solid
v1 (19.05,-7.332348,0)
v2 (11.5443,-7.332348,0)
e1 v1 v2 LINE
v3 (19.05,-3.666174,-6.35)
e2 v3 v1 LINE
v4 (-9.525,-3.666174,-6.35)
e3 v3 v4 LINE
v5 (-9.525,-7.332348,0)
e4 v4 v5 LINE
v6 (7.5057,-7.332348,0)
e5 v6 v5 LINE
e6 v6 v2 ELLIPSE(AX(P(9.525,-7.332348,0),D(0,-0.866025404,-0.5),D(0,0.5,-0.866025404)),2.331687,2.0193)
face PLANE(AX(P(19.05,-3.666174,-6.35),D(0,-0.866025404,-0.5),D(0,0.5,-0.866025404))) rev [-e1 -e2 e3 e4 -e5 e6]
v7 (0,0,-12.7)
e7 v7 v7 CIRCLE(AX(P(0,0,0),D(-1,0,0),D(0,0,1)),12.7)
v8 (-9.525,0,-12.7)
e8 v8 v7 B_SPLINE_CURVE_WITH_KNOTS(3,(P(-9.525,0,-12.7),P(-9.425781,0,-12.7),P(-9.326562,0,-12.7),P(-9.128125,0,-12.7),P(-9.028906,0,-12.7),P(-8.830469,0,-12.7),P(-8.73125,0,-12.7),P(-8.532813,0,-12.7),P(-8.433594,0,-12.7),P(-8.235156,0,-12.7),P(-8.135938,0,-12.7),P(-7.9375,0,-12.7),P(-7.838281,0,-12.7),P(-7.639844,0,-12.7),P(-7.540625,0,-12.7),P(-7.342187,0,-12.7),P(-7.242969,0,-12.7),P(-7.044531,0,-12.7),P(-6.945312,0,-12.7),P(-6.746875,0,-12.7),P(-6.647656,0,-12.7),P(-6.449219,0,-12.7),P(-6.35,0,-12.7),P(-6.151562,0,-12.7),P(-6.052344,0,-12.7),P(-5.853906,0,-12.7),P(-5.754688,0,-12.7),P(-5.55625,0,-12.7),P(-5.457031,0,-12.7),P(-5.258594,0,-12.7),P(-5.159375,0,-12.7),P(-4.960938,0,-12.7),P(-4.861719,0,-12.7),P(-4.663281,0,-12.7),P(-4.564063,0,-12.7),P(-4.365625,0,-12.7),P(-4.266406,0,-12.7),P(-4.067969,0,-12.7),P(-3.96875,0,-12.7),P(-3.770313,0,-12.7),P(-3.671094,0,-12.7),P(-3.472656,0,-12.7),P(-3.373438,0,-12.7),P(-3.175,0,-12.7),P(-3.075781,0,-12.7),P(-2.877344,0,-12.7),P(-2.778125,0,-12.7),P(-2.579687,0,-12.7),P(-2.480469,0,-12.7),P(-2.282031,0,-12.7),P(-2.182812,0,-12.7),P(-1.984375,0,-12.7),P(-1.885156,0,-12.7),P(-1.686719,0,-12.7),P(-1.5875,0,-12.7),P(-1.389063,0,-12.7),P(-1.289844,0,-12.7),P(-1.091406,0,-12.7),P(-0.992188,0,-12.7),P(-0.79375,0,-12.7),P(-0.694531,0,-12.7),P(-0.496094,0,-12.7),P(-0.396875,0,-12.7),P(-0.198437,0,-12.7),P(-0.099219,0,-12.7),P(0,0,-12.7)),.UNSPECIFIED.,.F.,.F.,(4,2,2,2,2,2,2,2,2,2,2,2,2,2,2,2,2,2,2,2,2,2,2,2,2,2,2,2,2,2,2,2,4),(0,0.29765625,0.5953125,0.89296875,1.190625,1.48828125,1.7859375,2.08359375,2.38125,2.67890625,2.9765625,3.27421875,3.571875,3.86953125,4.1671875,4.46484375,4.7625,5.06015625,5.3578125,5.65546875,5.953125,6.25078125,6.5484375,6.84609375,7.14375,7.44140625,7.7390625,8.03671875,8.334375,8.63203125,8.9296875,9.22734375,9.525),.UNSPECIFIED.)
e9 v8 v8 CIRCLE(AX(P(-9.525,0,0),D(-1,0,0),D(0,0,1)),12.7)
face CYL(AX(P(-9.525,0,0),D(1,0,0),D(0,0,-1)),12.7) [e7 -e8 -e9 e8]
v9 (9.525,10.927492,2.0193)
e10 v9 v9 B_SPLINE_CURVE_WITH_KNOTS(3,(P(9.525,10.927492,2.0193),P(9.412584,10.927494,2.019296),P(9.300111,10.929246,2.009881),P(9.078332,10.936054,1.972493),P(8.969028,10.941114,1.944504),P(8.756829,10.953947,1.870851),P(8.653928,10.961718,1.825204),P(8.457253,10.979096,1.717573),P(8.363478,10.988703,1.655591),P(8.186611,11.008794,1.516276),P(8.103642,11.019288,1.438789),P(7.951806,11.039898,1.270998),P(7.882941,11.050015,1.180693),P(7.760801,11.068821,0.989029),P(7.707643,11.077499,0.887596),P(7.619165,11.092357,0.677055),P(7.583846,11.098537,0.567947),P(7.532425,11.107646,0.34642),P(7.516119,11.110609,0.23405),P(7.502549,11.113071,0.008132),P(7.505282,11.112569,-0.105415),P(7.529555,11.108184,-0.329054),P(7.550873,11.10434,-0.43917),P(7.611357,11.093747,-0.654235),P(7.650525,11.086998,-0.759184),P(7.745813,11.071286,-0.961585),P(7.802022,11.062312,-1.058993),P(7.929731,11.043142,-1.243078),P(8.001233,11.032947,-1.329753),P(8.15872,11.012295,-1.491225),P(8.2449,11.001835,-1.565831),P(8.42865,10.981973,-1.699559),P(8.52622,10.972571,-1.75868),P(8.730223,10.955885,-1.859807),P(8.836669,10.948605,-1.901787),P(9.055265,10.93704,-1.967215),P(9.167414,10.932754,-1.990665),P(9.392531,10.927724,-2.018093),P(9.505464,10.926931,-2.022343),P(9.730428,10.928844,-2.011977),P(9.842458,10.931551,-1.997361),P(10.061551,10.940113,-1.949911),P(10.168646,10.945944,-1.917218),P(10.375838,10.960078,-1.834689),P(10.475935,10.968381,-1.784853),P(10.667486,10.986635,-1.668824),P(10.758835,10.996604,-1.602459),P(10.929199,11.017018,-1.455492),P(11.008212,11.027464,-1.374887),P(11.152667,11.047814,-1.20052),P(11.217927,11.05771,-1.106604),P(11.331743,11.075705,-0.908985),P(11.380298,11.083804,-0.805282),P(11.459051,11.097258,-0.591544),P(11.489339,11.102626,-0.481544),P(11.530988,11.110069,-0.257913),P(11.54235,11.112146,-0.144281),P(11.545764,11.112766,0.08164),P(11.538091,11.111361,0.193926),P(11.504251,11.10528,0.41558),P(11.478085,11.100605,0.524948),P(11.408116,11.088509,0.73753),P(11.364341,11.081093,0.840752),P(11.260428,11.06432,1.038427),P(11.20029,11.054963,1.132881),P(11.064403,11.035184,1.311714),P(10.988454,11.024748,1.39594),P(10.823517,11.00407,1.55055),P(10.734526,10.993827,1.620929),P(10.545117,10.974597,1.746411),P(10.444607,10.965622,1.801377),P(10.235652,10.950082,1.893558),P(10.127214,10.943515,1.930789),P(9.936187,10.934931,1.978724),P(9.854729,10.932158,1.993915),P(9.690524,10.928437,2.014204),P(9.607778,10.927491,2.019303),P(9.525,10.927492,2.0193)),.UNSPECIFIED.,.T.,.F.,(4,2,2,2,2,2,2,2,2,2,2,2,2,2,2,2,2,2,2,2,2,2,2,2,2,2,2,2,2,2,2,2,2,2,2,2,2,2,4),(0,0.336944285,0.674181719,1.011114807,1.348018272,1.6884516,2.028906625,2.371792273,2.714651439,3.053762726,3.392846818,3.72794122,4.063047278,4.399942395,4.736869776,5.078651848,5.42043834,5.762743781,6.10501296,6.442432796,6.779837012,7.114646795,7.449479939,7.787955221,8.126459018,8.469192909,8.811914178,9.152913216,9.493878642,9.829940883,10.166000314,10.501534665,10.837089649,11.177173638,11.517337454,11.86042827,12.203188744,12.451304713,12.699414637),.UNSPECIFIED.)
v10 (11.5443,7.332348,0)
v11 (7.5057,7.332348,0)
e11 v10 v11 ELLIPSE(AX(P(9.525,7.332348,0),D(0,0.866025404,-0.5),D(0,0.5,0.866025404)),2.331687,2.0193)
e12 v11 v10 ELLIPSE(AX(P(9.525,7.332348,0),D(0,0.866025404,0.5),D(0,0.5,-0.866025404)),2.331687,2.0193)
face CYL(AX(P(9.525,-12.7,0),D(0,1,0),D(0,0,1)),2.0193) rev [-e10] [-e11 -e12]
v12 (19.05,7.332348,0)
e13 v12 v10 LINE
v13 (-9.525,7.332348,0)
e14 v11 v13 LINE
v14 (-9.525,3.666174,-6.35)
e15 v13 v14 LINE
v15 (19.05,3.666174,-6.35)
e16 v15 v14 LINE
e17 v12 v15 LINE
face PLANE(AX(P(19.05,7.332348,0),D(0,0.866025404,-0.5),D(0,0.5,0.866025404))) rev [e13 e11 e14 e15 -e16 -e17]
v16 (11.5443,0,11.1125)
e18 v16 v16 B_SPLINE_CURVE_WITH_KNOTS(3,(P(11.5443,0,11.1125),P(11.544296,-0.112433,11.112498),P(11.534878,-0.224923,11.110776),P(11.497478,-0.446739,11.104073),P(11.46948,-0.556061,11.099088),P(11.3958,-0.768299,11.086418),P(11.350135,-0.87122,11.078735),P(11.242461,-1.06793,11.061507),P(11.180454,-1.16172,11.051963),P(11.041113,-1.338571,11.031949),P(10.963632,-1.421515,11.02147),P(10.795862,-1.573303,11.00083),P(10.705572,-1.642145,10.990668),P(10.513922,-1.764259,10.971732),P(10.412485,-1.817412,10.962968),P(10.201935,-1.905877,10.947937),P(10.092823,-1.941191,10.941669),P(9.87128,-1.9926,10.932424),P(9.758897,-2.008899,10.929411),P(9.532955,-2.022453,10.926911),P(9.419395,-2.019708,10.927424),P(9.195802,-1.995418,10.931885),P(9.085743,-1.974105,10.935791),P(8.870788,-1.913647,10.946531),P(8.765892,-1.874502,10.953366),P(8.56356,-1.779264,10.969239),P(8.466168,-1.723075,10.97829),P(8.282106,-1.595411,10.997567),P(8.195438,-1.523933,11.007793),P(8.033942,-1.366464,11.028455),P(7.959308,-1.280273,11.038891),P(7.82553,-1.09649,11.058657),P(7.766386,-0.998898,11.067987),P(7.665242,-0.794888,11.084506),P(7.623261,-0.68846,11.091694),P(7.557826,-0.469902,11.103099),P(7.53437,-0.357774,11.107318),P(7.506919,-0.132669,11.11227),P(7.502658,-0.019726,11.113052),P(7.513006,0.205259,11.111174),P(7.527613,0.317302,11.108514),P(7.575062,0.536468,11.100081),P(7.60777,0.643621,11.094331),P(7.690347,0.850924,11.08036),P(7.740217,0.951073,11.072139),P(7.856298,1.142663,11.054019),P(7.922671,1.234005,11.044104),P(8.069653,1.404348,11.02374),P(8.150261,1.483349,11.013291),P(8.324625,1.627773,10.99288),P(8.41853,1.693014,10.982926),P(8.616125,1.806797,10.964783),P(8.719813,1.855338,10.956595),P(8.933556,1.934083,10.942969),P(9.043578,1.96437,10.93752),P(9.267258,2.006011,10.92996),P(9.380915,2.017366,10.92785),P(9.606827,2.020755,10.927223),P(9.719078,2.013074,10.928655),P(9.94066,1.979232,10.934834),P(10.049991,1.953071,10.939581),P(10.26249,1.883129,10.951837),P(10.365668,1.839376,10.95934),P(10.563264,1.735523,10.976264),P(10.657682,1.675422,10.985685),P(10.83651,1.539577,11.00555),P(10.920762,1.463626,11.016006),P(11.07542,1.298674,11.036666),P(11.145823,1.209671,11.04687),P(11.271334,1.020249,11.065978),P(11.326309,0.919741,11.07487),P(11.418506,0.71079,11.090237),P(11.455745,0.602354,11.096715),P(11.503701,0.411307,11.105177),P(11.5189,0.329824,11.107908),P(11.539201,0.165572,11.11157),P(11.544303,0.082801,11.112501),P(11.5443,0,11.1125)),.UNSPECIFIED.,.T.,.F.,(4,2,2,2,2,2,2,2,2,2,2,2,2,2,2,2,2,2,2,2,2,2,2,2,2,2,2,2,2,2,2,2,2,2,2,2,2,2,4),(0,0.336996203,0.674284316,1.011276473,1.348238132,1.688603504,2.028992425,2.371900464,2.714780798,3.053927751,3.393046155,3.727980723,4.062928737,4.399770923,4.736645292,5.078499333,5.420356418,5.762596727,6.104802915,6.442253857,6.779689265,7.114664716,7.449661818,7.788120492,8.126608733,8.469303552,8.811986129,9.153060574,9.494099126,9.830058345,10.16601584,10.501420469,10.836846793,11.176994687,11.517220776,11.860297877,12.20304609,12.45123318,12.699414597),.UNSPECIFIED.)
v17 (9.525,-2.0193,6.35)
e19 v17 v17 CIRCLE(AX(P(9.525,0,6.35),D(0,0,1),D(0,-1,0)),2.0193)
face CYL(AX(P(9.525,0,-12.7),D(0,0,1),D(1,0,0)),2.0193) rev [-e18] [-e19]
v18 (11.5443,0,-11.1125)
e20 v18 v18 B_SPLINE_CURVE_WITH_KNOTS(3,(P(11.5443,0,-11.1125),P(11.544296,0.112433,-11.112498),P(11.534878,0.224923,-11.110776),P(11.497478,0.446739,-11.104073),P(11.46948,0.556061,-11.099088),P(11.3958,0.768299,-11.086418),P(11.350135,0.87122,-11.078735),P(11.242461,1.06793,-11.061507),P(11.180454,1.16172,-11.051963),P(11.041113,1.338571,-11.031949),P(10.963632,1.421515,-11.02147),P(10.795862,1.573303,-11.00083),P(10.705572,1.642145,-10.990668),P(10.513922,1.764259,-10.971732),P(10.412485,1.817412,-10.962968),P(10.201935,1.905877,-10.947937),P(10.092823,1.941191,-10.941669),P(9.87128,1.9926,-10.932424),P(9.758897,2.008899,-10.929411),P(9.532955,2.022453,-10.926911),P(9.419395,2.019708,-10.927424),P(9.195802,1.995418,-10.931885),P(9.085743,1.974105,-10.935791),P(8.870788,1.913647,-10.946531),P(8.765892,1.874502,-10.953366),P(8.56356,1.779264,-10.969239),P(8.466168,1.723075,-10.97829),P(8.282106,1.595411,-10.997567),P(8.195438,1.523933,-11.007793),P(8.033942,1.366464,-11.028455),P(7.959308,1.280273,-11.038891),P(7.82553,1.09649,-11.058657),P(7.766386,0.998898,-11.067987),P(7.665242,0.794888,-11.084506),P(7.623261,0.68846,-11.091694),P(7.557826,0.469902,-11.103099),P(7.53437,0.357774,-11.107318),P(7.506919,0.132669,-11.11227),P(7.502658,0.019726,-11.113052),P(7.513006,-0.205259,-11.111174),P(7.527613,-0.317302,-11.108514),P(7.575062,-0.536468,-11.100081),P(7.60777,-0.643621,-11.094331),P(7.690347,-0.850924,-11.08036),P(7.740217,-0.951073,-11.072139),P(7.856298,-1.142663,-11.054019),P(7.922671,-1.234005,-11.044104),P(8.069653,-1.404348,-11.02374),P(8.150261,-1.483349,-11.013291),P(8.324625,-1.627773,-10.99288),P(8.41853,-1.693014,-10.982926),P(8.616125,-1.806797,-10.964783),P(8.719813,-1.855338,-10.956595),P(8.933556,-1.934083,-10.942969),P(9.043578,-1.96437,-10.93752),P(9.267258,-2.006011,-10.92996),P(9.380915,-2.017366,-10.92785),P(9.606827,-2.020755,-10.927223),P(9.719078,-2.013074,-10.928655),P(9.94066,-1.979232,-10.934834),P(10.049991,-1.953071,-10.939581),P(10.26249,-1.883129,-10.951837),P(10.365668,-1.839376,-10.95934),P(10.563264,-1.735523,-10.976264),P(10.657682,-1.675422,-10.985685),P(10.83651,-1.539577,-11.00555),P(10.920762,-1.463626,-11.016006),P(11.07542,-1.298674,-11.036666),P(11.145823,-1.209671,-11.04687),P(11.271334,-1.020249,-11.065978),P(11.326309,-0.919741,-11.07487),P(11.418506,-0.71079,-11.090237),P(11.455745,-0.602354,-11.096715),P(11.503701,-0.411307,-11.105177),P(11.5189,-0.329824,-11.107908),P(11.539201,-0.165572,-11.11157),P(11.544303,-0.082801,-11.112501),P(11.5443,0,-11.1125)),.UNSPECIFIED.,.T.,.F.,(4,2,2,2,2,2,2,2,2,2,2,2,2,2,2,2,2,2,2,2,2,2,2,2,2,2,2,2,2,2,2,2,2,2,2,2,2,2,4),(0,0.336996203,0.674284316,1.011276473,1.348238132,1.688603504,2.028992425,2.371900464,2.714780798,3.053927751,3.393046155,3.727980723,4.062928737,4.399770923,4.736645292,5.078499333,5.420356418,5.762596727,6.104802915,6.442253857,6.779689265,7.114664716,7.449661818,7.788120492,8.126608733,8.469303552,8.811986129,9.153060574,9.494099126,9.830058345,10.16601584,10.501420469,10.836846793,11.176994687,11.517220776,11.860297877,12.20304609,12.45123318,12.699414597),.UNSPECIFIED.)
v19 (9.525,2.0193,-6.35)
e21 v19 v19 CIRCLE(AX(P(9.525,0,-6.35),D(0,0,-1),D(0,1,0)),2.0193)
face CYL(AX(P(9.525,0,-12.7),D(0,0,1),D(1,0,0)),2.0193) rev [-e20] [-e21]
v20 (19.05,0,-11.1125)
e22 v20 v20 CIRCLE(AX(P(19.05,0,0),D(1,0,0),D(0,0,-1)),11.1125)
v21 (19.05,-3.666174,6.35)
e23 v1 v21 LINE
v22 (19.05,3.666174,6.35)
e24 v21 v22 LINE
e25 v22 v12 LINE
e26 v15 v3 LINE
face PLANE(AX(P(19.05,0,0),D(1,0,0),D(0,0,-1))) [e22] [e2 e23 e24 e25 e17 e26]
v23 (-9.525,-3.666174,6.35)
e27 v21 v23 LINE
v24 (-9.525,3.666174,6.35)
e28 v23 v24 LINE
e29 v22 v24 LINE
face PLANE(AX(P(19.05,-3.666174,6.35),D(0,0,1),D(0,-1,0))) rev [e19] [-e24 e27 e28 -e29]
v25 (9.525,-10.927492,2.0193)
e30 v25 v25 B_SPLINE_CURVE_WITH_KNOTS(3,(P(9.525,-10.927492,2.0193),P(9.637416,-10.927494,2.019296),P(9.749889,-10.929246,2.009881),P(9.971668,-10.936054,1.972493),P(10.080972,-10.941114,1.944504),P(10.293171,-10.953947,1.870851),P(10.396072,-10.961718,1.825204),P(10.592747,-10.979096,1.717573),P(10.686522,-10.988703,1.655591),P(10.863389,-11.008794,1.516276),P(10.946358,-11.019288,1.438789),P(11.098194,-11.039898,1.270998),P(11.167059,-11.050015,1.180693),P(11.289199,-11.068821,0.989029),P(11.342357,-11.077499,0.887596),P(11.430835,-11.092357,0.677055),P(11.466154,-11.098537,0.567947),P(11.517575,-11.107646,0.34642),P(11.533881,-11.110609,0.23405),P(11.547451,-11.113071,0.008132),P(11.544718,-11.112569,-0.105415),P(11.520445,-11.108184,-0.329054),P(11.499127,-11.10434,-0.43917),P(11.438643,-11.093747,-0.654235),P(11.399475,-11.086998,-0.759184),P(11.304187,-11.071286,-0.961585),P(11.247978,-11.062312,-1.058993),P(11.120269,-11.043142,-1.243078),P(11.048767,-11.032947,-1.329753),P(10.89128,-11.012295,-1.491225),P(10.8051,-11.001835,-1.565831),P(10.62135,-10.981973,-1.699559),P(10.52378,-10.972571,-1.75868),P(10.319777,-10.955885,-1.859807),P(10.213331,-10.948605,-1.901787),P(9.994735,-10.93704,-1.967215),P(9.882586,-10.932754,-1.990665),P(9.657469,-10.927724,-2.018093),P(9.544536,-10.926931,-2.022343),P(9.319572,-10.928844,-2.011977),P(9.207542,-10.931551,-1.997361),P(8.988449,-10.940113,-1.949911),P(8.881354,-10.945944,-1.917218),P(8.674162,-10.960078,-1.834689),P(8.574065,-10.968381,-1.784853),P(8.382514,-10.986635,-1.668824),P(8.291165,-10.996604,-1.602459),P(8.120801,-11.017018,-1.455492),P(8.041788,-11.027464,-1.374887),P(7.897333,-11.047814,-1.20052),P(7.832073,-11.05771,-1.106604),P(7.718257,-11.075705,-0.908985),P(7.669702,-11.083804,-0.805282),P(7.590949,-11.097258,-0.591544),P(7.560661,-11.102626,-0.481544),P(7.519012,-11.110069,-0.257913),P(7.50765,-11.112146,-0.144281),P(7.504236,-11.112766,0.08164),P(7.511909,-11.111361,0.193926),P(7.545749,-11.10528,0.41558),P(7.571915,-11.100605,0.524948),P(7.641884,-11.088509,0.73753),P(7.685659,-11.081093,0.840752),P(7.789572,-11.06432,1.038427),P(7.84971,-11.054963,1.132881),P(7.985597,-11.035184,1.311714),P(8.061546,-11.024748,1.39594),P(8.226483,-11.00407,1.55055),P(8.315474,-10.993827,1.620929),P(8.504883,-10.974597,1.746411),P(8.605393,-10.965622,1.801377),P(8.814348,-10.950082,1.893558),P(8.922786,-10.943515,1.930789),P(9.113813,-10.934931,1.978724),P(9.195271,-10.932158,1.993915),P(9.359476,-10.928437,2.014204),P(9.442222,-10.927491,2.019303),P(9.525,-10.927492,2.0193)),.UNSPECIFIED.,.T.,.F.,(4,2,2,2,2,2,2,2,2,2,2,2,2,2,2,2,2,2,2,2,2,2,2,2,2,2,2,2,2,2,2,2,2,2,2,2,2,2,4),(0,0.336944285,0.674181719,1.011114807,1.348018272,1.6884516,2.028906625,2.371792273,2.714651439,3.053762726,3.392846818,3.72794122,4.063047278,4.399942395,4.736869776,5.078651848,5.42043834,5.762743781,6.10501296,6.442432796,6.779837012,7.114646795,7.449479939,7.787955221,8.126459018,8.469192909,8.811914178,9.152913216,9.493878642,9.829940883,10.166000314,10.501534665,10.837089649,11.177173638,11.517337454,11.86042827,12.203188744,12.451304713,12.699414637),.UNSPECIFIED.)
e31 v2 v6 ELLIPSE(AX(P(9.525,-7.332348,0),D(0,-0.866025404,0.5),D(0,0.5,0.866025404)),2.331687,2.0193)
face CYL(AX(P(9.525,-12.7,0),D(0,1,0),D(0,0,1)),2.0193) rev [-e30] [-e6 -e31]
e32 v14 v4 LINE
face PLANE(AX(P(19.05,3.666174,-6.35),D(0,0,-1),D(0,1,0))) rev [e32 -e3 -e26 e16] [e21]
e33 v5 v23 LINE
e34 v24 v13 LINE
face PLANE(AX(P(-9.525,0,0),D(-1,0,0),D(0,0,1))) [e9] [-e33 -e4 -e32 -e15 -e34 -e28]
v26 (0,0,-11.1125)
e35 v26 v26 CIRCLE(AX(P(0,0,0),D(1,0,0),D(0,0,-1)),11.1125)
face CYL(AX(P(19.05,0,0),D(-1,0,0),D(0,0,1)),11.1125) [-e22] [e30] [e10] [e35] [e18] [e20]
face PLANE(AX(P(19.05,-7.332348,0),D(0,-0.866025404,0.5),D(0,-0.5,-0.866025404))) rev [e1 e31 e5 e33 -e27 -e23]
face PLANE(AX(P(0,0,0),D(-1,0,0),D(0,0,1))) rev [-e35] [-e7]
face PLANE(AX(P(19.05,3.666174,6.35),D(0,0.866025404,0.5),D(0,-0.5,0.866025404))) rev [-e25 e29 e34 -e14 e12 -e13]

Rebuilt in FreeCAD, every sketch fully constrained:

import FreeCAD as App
import Part
import Sketcher

V = App.Vector
Q = App.Units.Quantity

doc = App.newDocument("Part")
body = doc.addObject("PartDesign::Body", "Body")

sketch1 = doc.addObject("Sketcher::SketchObject", "Sketch")
body.addObject(sketch1)
sketch1.AttachmentSupport = (doc.YZ_Plane, [""])
sketch1.MapMode = "FlatFace"
sketch1.addGeometry(Part.Circle(V(0, 0, 0), V(0, 0, 1), 11), False)
sketch1.addConstraint(Sketcher.Constraint("Coincident", 0, 3, -1, 1))
sketch1.addConstraint(Sketcher.Constraint("Diameter", 0, Q("0.875 in")))
pad1 = doc.addObject("PartDesign::Pad", "Pad")
body.addObject(pad1)
pad1.Profile = sketch1
pad1.Length = Q("0.75 in")

sketch2 = doc.addObject("Sketcher::SketchObject", "Sketch001")
body.addObject(sketch2)
sketch2.AttachmentSupport = (doc.YZ_Plane, [""])
sketch2.MapMode = "FlatFace"
sketch2.addGeometry(Part.Circle(V(0, 0, 0), V(0, 0, 1), 13), False)
sketch2.addConstraint(Sketcher.Constraint("Coincident", 0, 3, -1, 1))
sketch2.addConstraint(Sketcher.Constraint("Diameter", 0, Q("1 in")))
pad2 = doc.addObject("PartDesign::Pad", "Pad001")
body.addObject(pad2)
pad2.Profile = sketch2
pad2.Length = Q("0.375 in")
pad2.Reversed = True

sketch3 = doc.addObject("Sketcher::SketchObject", "Sketch002")
body.addObject(sketch3)
sketch3.AttachmentSupport = (doc.YZ_Plane, [""])
sketch3.MapMode = "FlatFace"
sketch3.AttachmentOffset = App.Placement(V(0, 0, -0.375 * 25.4), App.Rotation())
sketch3.addGeometry(Part.LineSegment(V(7, 0, 0), V(4, -6, 0)), False)
sketch3.addGeometry(Part.LineSegment(V(4, -6, 0), V(-4, -6, 0)), False)
sketch3.addGeometry(Part.LineSegment(V(-4, -6, 0), V(-7, 0, 0)), False)
sketch3.addGeometry(Part.LineSegment(V(-7, 0, 0), V(-4, 6, 0)), False)
sketch3.addGeometry(Part.LineSegment(V(-4, 6, 0), V(4, 6, 0)), False)
sketch3.addGeometry(Part.LineSegment(V(4, 6, 0), V(7, 0, 0)), False)
sketch3.addConstraint(Sketcher.Constraint("Coincident", 0, 2, 1, 1))
sketch3.addConstraint(Sketcher.Constraint("Coincident", 1, 2, 2, 1))
sketch3.addConstraint(Sketcher.Constraint("Coincident", 2, 2, 3, 1))
sketch3.addConstraint(Sketcher.Constraint("Coincident", 3, 2, 4, 1))
sketch3.addConstraint(Sketcher.Constraint("Coincident", 4, 2, 5, 1))
sketch3.addConstraint(Sketcher.Constraint("Coincident", 5, 2, 0, 1))
sketch3.addConstraint(Sketcher.Constraint("Horizontal", 1))
sketch3.addConstraint(Sketcher.Constraint("Horizontal", 4))
sketch3.addConstraint(Sketcher.Constraint("Symmetric", 0, 2, 3, 2, -1, 1))
sketch3.addConstraint(Sketcher.Constraint("Symmetric", 2, 2, 5, 2, -1, 1))
sketch3.addConstraint(Sketcher.Constraint("PointOnObject", 2, 2, -1))
sketch3.addConstraint(Sketcher.Constraint("Parallel", 2, 5))
sketch3.addConstraint(Sketcher.Constraint("Vertical", 1, 2, 3, 2))
sketch3.addConstraint(Sketcher.Constraint("Angle", 0, Q("-120 deg")))
sketch3.addConstraint(Sketcher.Constraint("DistanceY", 1, 2, 3, 2, Q("0.5 in")))
sketch3.addConstraint(Sketcher.Constraint("DistanceX", 1, 2, 1, 1, 7.332348))
pocket1 = doc.addObject("PartDesign::Pocket", "Pocket")
body.addObject(pocket1)
pocket1.Profile = sketch3
pocket1.Type = "ThroughAll"
pocket1.Reversed = True

sketch4 = doc.addObject("Sketcher::SketchObject", "Sketch003")
body.addObject(sketch4)
sketch4.AttachmentSupport = (doc.XY_Plane, [""])
sketch4.MapMode = "FlatFace"
sketch4.addGeometry(Part.Circle(V(9.5, 0, 0), V(0, 0, 1), 2), False)
sketch4.addConstraint(Sketcher.Constraint("PointOnObject", 0, 3, -1))
sketch4.addConstraint(Sketcher.Constraint("Diameter", 0, Q("0.159 in")))
sketch4.addConstraint(Sketcher.Constraint("DistanceX", -1, 1, 0, 3, Q("0.375 in")))
pocket2 = doc.addObject("PartDesign::Pocket", "Pocket001")
body.addObject(pocket2)
pocket2.Profile = sketch4
pocket2.Type = "ThroughAll"
pocket2.Midplane = True

sketch5 = doc.addObject("Sketcher::SketchObject", "Sketch004")
body.addObject(sketch5)
sketch5.AttachmentSupport = (doc.XZ_Plane, [""])
sketch5.MapMode = "FlatFace"
sketch5.addGeometry(Part.Circle(V(9.5, 0, 0), V(0, 0, 1), 2), False)
sketch5.addConstraint(Sketcher.Constraint("PointOnObject", 0, 3, -1))
sketch5.addConstraint(Sketcher.Constraint("Diameter", 0, Q("0.159 in")))
sketch5.addConstraint(Sketcher.Constraint("DistanceX", -1, 1, 0, 3, Q("0.375 in")))
pocket3 = doc.addObject("PartDesign::Pocket", "Pocket002")
body.addObject(pocket3)
pocket3.Profile = sketch5
pocket3.Type = "ThroughAll"
pocket3.Midplane = True

doc.recompute()
